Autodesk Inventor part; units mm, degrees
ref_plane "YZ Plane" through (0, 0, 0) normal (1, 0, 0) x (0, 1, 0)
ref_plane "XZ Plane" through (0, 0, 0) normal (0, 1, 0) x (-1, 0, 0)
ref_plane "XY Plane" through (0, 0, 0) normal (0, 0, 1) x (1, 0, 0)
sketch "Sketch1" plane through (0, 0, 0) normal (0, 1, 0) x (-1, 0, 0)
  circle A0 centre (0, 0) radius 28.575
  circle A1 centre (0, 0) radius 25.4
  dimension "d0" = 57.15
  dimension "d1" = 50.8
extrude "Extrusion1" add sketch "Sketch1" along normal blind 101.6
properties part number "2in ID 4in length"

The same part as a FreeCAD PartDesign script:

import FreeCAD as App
import Part
import Sketcher
from FreeCAD import Vector
Q = App.Units.Quantity

doc = App.newDocument("Part")
body = doc.addObject("PartDesign::Body", "Body")

sketch1 = body.newObject("Sketcher::SketchObject", "Sketch")
sketch1.AttachmentSupport = (doc.getObject("XZ_Plane"), [""])
sketch1.MapMode = "FlatFace"
sketch1.addGeometry(Part.Circle(Vector(0, 0, 0), Vector(0, 0, 1), 29), False)
sketch1.addGeometry(Part.Circle(Vector(0, 0, 0), Vector(0, 0, 1), 25), False)
sketch1.addConstraint(Sketcher.Constraint("Coincident", 0, 3, -1, 1))
sketch1.addConstraint(Sketcher.Constraint("Coincident", 1, 3, -1, 1))
sketch1.addConstraint(Sketcher.Constraint("Diameter", 1, Q("2 in")))
sketch1.addConstraint(Sketcher.Constraint("Diameter", 0, Q("2.25 in")))
pad1 = body.newObject("PartDesign::Pad", "Pad")
pad1.Profile = sketch1
pad1.Length = Q("4 in")
pad1.Reversed = True

doc.recompute()
